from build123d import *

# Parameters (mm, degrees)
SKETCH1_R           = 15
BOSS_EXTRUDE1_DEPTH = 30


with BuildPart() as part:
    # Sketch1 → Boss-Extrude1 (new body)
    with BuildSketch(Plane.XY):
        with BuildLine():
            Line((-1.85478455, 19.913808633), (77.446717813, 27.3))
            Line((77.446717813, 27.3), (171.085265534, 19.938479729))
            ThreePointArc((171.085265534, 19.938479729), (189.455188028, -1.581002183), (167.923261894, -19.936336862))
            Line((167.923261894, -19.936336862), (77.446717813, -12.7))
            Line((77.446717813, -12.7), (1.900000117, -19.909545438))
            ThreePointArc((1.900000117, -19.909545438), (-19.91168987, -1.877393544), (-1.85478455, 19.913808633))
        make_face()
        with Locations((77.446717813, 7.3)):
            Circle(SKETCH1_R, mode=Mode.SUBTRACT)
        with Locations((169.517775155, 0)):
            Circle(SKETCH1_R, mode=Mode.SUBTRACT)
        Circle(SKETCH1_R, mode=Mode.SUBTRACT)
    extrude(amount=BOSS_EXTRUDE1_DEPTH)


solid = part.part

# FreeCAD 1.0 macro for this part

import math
import FreeCAD as App
import Part
import Sketcher

V = App.Vector
Q = App.Units.Quantity

doc = App.newDocument("Part")
params = doc.addObject("Spreadsheet::Sheet", "Params")
for row, (alias, value) in enumerate([
    ("sketch1_diameter", "30 mm"),
    ("sketch1_radius", "20 mm"),
    ("pad1_length", "30 mm"),
], start=1):
    params.set(f"A{row}", alias)
    params.set(f"B{row}", "=" + value)
    params.setAlias(f"B{row}", alias)

body = doc.addObject("PartDesign::Body", "Body")

sketch1 = body.newObject("Sketcher::SketchObject", "Sketch")
sketch1.AttachmentSupport = (doc.getObject("XY_Plane"), [""])
sketch1.MapMode = "FlatFace"
sketch1.addGeometry([
    Part.LineSegment(V(77, 27, 0), V(-2, 20, 0)),
    Part.ArcOfCircle(Part.Circle(V(0, 0, 0), V(0, 0, 1), 20), math.radians(95), math.radians(275)),
    Part.LineSegment(V(2, -20, 0), V(77, -13, 0)),
    Part.LineSegment(V(77, -13, 0), V(168, -20, 0)),
    Part.ArcOfCircle(Part.Circle(V(170, 0, 0), V(0, 0, 1), 20), math.radians(-95), math.radians(86)),
    Part.LineSegment(V(171, 20, 0), V(77, 27, 0)),
    Part.Circle(V(170, 0, 0), V(0, 0, 1), 15),
    Part.Circle(V(0, 0, 0), V(0, 0, 1), 15),
    Part.Circle(V(77, 7, 0), V(0, 0, 1), 15),
], False)
sketch1.addConstraint([
    Sketcher.Constraint("Tangent", 0, 2, 1, 1),
    Sketcher.Constraint("Tangent", 1, 2, 2, 1),
    Sketcher.Constraint("Coincident", 2, 2, 3, 1),
    Sketcher.Constraint("Tangent", 3, 2, 4, 1),
    Sketcher.Constraint("Tangent", 4, 2, 5, 1),
    Sketcher.Constraint("Coincident", 5, 2, 0, 1),
    Sketcher.Constraint("Coincident", 1, 3, -1, 1),
    Sketcher.Constraint("Coincident", 7, 3, -1, 1),
    Sketcher.Constraint("Coincident", 6, 3, 4, 3),
    Sketcher.Constraint("Equal", 1, 4),
    Sketcher.Constraint("Equal", 6, 7),
    Sketcher.Constraint("Equal", 7, 8),
    Sketcher.Constraint("PointOnObject", 4, 3, -1),
    Sketcher.Constraint("Vertical", 8, 3, 2, 2),
    Sketcher.Constraint("Vertical", 2, 2, 5, 2),
    Sketcher.Constraint("Diameter", 6, Q("30 mm")),
    Sketcher.Constraint("Radius", 1, Q("20 mm")),
    Sketcher.Constraint("DistanceY", 2, 2, 8, 3, Q("20 mm")),
    Sketcher.Constraint("DistanceY", 8, 3, 5, 2, Q("20 mm")),
    Sketcher.Constraint("DistanceY", -1, 1, 8, 3, Q("7.3 mm")),
    Sketcher.Constraint("Distance", 5, Q("93.92747 mm")),
    Sketcher.Constraint("DistanceX", -1, 1, 3, 2, Q("167.923262 mm")),
])
sketch1.setExpression("Constraints[15]", "Params.sketch1_diameter")
sketch1.setExpression("Constraints[16]", "Params.sketch1_radius")
pad1 = body.newObject("PartDesign::Pad", "Pad")
pad1.Profile = sketch1
pad1.setExpression("Length", "Params.pad1_length")

doc.recompute()
